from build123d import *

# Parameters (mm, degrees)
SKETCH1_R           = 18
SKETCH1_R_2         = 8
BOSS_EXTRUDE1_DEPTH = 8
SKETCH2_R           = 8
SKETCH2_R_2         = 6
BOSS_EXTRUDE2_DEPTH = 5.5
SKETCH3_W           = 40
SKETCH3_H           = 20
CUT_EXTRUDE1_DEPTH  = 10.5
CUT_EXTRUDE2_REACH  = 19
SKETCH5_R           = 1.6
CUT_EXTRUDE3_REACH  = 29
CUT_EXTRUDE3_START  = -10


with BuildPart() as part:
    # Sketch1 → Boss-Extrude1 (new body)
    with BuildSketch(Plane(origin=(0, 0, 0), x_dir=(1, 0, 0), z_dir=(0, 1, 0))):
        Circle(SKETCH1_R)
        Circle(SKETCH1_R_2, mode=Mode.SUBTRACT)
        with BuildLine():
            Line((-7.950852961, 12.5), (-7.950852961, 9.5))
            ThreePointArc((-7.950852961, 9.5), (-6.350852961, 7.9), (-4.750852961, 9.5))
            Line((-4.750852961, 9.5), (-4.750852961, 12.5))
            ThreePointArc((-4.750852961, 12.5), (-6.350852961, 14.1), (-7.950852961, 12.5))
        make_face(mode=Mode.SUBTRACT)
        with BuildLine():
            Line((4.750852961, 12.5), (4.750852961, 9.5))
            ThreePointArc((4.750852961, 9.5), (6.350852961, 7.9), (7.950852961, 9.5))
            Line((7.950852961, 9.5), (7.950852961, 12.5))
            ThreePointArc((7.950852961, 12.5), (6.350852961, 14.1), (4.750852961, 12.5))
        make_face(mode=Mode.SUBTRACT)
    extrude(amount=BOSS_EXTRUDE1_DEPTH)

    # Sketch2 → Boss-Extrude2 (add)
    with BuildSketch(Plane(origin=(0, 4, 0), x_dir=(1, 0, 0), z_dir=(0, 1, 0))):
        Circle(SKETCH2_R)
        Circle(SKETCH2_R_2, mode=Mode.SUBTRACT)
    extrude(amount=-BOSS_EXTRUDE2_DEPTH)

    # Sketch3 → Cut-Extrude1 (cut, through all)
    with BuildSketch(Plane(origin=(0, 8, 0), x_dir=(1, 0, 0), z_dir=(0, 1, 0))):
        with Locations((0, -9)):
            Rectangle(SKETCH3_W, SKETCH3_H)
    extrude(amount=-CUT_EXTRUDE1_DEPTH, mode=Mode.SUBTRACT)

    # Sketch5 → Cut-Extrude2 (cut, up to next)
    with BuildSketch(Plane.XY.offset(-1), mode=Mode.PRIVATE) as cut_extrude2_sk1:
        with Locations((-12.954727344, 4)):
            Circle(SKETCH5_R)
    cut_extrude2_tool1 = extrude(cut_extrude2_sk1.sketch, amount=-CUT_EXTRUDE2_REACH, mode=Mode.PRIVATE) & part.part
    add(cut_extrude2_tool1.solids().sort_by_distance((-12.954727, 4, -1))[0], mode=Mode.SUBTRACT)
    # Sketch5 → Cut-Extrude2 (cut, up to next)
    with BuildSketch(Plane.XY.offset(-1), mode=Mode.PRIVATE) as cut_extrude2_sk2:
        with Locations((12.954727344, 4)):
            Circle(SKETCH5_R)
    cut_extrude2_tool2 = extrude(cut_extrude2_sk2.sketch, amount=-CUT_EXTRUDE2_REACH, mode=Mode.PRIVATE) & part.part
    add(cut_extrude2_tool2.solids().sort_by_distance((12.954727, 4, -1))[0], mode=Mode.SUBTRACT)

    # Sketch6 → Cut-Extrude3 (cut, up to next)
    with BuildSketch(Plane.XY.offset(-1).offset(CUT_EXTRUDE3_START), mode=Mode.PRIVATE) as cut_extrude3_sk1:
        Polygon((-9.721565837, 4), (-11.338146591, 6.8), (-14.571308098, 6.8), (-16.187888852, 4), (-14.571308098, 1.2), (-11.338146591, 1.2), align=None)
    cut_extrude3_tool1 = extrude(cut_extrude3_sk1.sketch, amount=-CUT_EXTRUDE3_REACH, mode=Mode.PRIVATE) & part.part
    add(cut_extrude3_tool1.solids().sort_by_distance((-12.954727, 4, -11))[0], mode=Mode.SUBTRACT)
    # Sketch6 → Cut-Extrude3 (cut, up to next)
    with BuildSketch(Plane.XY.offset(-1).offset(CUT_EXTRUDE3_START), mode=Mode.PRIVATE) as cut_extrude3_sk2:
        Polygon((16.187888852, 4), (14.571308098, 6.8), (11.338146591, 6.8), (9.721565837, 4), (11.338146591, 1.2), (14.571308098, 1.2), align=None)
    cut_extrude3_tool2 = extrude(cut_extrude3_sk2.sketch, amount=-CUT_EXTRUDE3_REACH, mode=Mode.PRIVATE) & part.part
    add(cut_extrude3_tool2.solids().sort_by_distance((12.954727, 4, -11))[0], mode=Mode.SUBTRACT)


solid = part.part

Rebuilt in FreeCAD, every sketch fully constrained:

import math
import FreeCAD as App
import Part
import Sketcher

V = App.Vector
Q = App.Units.Quantity


def add_polygon(sketch, points):
    """Adds a closed chain of lines whose ends are joined by coincident constraints."""
    first, n = sketch.GeometryCount, len(points)
    for a, b in zip(points, points[1:] + points[:1]):
        sketch.addGeometry(Part.LineSegment(App.Vector(*a, 0), App.Vector(*b, 0)), False)
    for i in range(n):
        sketch.addConstraint(Sketcher.Constraint("Coincident", first + i, 2, first + (i + 1) % n, 1))

doc = App.newDocument("Part")
body = doc.addObject("PartDesign::Body", "Body")

sketch1 = body.newObject("Sketcher::SketchObject", "Sketch")
sketch1.AttachmentSupport = (doc.getObject("XZ_Plane"), [""])
sketch1.MapMode = "FlatFace"
sketch1.addGeometry([
    Part.Circle(V(0, 0, 0), V(0, 0, 1), 18),
    Part.Circle(V(0, 0, 0), V(0, 0, 1), 8),
    Part.LineSegment(V(-7.950853, -9.5, 0), V(-7.950853, -12.5, 0)),
    Part.ArcOfCircle(Part.Circle(V(-6.350853, -12.5, 0), V(0, 0, 1), 1.6), math.radians(180), math.radians(360)),
    Part.LineSegment(V(-4.750853, -12.5, 0), V(-4.750853, -9.5, 0)),
    Part.ArcOfCircle(Part.Circle(V(-6.350853, -9.5, 0), V(0, 0, 1), 1.6), math.radians(0), math.radians(180)),
    Part.LineSegment(V(4.750853, -9.5, 0), V(4.750853, -12.5, 0)),
    Part.ArcOfCircle(Part.Circle(V(6.350853, -12.5, 0), V(0, 0, 1), 1.6), math.radians(180), math.radians(360)),
    Part.LineSegment(V(7.950853, -12.5, 0), V(7.950853, -9.5, 0)),
    Part.ArcOfCircle(Part.Circle(V(6.350853, -9.5, 0), V(0, 0, 1), 1.6), math.radians(0), math.radians(180)),
], False)
sketch1.addConstraint([
    Sketcher.Constraint("Tangent", 2, 2, 3, 1),
    Sketcher.Constraint("Tangent", 3, 2, 4, 1),
    Sketcher.Constraint("Tangent", 4, 2, 5, 1),
    Sketcher.Constraint("Tangent", 5, 2, 2, 1),
    Sketcher.Constraint("Tangent", 6, 2, 7, 1),
    Sketcher.Constraint("Tangent", 7, 2, 8, 1),
    Sketcher.Constraint("Tangent", 8, 2, 9, 1),
    Sketcher.Constraint("Tangent", 9, 2, 6, 1),
    Sketcher.Constraint("Vertical", 2),
    Sketcher.Constraint("Vertical", 4),
    Sketcher.Constraint("Vertical", 6),
    Sketcher.Constraint("Vertical", 8),
    Sketcher.Constraint("Coincident", 0, 3, -1, 1),
    Sketcher.Constraint("Coincident", 1, 3, -1, 1),
    Sketcher.Constraint("Equal", 5, 7),
    Sketcher.Constraint("Symmetric", 3, 3, 7, 3, -2),
    Sketcher.Constraint("Horizontal", 5, 3, 9, 3),
    Sketcher.Constraint("Diameter", 0, Q("36 mm")),
    Sketcher.Constraint("Diameter", 1, Q("16 mm")),
    Sketcher.Constraint("Radius", 3, Q("1.6 mm")),
    Sketcher.Constraint("DistanceY", 2, 2, 2, 1, Q("3 mm")),
    Sketcher.Constraint("DistanceY", 3, 3, -1, 1, Q("12.5 mm")),
    Sketcher.Constraint("DistanceX", 3, 3, -1, 1, Q("6.350853 mm")),
])
pad1 = body.newObject("PartDesign::Pad", "Pad")
pad1.Profile = sketch1
pad1.Length = 8
pad1.Reversed = True

sketch2 = body.newObject("Sketcher::SketchObject", "Sketch001")
sketch2.AttachmentSupport = (doc.getObject("XZ_Plane"), [""])
sketch2.MapMode = "FlatFace"
sketch2.AttachmentOffset = App.Placement(V(0, 0, -4), App.Rotation())
sketch2.addGeometry([
    Part.Circle(V(0, 0, 0), V(0, 0, 1), 8),
    Part.Circle(V(0, 0, 0), V(0, 0, 1), 6),
], False)
sketch2.addConstraint([
    Sketcher.Constraint("Coincident", 0, 3, -1, 1),
    Sketcher.Constraint("Coincident", 1, 3, -1, 1),
    Sketcher.Constraint("Diameter", 0, Q("16 mm")),
    Sketcher.Constraint("Diameter", 1, Q("12 mm")),
])
pad2 = body.newObject("PartDesign::Pad", "Pad001")
pad2.Profile = sketch2
pad2.Length = 5.5

sketch3 = body.newObject("Sketcher::SketchObject", "Sketch002")
sketch3.AttachmentSupport = (doc.getObject("XZ_Plane"), [""])
sketch3.MapMode = "FlatFace"
sketch3.AttachmentOffset = App.Placement(V(0, 0, -8), App.Rotation())
add_polygon(sketch3, [(-20, -1), (-20, 19), (20, 19), (20, -1)])
sketch3.addConstraint([
    Sketcher.Constraint("Vertical", 0),
    Sketcher.Constraint("Horizontal", 1),
    Sketcher.Constraint("Vertical", 2),
    Sketcher.Constraint("Horizontal", 3),
    Sketcher.Constraint("DistanceX", 1, 1, 1, 2, Q("40 mm")),
    Sketcher.Constraint("DistanceY", 0, 1, 0, 2, Q("20 mm")),
    Sketcher.Constraint("DistanceX", 0, 2, -1, 1, Q("20 mm")),
    Sketcher.Constraint("DistanceY", -1, 1, 0, 2, Q("19 mm")),
])
pocket1 = body.newObject("PartDesign::Pocket", "Pocket")
pocket1.Profile = sketch3
pocket1.Type = "ThroughAll"
pocket1.Reversed = True

sketch4 = body.newObject("Sketcher::SketchObject", "Sketch003")
sketch4.AttachmentSupport = (doc.getObject("XY_Plane"), [""])
sketch4.MapMode = "FlatFace"
sketch4.AttachmentOffset = App.Placement(V(0, 0, -1), App.Rotation())
sketch4.addGeometry(Part.Circle(V(-12.954727, 4, 0), V(0, 0, 1), 1.6), False)
sketch4.addConstraint([
    Sketcher.Constraint("Diameter", 0, Q("3.2 mm")),
    Sketcher.Constraint("DistanceY", -1, 1, 0, 3, Q("4 mm")),
    Sketcher.Constraint("DistanceX", 0, 3, -1, 1, Q("12.954727 mm")),
])
pocket2 = body.newObject("PartDesign::Pocket", "Pocket001")
pocket2.Profile = sketch4
pocket2.Type = "UpToFirst"

sketch5 = body.newObject("Sketcher::SketchObject", "Sketch004")
sketch5.AttachmentSupport = (doc.getObject("XY_Plane"), [""])
sketch5.MapMode = "FlatFace"
sketch5.AttachmentOffset = App.Placement(V(0, 0, -1), App.Rotation())
sketch5.addGeometry(Part.Circle(V(12.954727, 4, 0), V(0, 0, 1), 1.6), False)
sketch5.addConstraint([
    Sketcher.Constraint("Diameter", 0, Q("3.2 mm")),
    Sketcher.Constraint("DistanceY", -1, 1, 0, 3, Q("4 mm")),
    Sketcher.Constraint("DistanceX", -1, 1, 0, 3, Q("12.954727 mm")),
])
pocket3 = body.newObject("PartDesign::Pocket", "Pocket002")
pocket3.Profile = sketch5
pocket3.Type = "UpToFirst"

sketch6 = body.newObject("Sketcher::SketchObject", "Sketch005")
sketch6.AttachmentSupport = (doc.getObject("XY_Plane"), [""])
sketch6.MapMode = "FlatFace"
sketch6.AttachmentOffset = App.Placement(V(0, 0, -11), App.Rotation())
add_polygon(sketch6, [(-9.721566, 4), (-11.338147, 6.8), (-14.571308, 6.8), (-16.187889, 4), (-14.571308, 1.2), (-11.338147, 1.2)])
sketch6.addConstraint([
    Sketcher.Constraint("Horizontal", 1),
    Sketcher.Constraint("Horizontal", 4),
    Sketcher.Constraint("Parallel", 0, 3),
    Sketcher.Constraint("Parallel", 2, 5),
    Sketcher.Constraint("Horizontal", 2, 2, 5, 2),
    Sketcher.Constraint("Vertical", 1, 2, 3, 2),
    Sketcher.Constraint("Vertical", 0, 2, 4, 2),
    Sketcher.Constraint("Angle", 0, Q("120 deg")),
    Sketcher.Constraint("DistanceY", -1, 1, 2, 2, Q("4 mm")),
    Sketcher.Constraint("DistanceY", -1, 1, 0, 2, Q("6.8 mm")),
    Sketcher.Constraint("DistanceX", 1, 2, 1, 1, Q("3.233162 mm")),
    Sketcher.Constraint("DistanceX", 1, 2, -1, 1, Q("14.571308 mm")),
])
pocket4 = body.newObject("PartDesign::Pocket", "Pocket003")
pocket4.Profile = sketch6
pocket4.Length = 4.148966

sketch7 = body.newObject("Sketcher::SketchObject", "Sketch006")
sketch7.AttachmentSupport = (doc.getObject("XY_Plane"), [""])
sketch7.MapMode = "FlatFace"
sketch7.AttachmentOffset = App.Placement(V(0, 0, -11), App.Rotation())
add_polygon(sketch7, [(16.187889, 4), (14.571308, 6.8), (11.338147, 6.8), (9.721566, 4), (11.338147, 1.2), (14.571308, 1.2)])
sketch7.addConstraint([
    Sketcher.Constraint("Horizontal", 1),
    Sketcher.Constraint("Horizontal", 4),
    Sketcher.Constraint("Parallel", 0, 3),
    Sketcher.Constraint("Parallel", 2, 5),
    Sketcher.Constraint("Horizontal", 2, 2, 5, 2),
    Sketcher.Constraint("Vertical", 1, 2, 3, 2),
    Sketcher.Constraint("Vertical", 0, 2, 4, 2),
    Sketcher.Constraint("Angle", 0, Q("120 deg")),
    Sketcher.Constraint("DistanceY", -1, 1, 2, 2, Q("4 mm")),
    Sketcher.Constraint("DistanceY", -1, 1, 0, 2, Q("6.8 mm")),
    Sketcher.Constraint("DistanceX", 1, 2, 1, 1, Q("3.233162 mm")),
    Sketcher.Constraint("DistanceX", -1, 1, 0, 2, Q("14.571308 mm")),
])
pocket5 = body.newObject("PartDesign::Pocket", "Pocket004")
pocket5.Profile = sketch7
pocket5.Length = 4.148966

doc.recompute()
